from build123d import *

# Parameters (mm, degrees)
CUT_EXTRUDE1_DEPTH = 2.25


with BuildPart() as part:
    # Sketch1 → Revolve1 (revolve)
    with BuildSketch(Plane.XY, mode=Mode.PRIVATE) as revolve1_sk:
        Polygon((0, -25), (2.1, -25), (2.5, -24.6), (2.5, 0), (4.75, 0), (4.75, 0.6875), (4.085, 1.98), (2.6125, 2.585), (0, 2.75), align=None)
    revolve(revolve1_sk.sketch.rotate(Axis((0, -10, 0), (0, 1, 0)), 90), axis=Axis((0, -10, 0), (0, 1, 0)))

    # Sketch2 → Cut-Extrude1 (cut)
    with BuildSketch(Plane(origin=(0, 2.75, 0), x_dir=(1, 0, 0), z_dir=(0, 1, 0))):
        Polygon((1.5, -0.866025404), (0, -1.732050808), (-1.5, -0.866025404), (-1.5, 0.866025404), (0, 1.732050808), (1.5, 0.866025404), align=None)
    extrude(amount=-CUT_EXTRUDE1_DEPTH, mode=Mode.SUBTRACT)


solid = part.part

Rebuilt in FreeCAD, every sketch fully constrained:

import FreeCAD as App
import Part
import Sketcher

V = App.Vector
Q = App.Units.Quantity


def add_polygon(sketch, points):
    """Adds a closed chain of lines whose ends are joined by coincident constraints."""
    first, n = sketch.GeometryCount, len(points)
    for a, b in zip(points, points[1:] + points[:1]):
        sketch.addGeometry(Part.LineSegment(App.Vector(*a, 0), App.Vector(*b, 0)), False)
    for i in range(n):
        sketch.addConstraint(Sketcher.Constraint("Coincident", first + i, 2, first + (i + 1) % n, 1))

doc = App.newDocument("Part")
params = doc.addObject("Spreadsheet::Sheet", "Params")
for row, (alias, value) in enumerate([
    ("sketch1_width", "2.1 mm"),
    ("sketch1_height", "24.6 mm"),
    ("sketch1_width2", "2.25 mm"),
    ("sketch1_height2", "27.75 mm"),
    ("revolution_angle", "360 deg"),
    ("pocket1_length", "2.25 mm"),
], start=1):
    params.set(f"A{row}", alias)
    params.set(f"B{row}", "=" + value)
    params.setAlias(f"B{row}", alias)

body = doc.addObject("PartDesign::Body", "Body")

sketch1 = body.newObject("Sketcher::SketchObject", "Sketch")
sketch1.AttachmentSupport = (doc.getObject("XY_Plane"), [""])
sketch1.MapMode = "FlatFace"
add_polygon(sketch1, [(0, -25), (2.1, -25), (2.5, -24.6), (2.5, 0), (4.8, 0), (4.8, 0.7), (4.1, 2), (2.6, 2.6), (0, 2.8)])
sketch1.addConstraint([
    Sketcher.Constraint("Horizontal", 0),
    Sketcher.Constraint("Vertical", 2),
    Sketcher.Constraint("Horizontal", 3),
    Sketcher.Constraint("Vertical", 4),
    Sketcher.Constraint("Vertical", 8),
    Sketcher.Constraint("PointOnObject", 2, 2, -1),
    Sketcher.Constraint("PointOnObject", 7, 2, -2),
    Sketcher.Constraint("Angle", 1, Q("45 deg")),
    Sketcher.Constraint("DistanceX", 0, 1, 0, 2, Q("2.1 mm")),
    Sketcher.Constraint("DistanceY", 2, 1, 2, 2, Q("24.6 mm")),
    Sketcher.Constraint("DistanceY", 0, 2, -1, 1, Q("25 mm")),
    Sketcher.Constraint("DistanceX", 3, 1, 3, 2, Q("2.25 mm")),
    Sketcher.Constraint("DistanceY", 8, 2, 8, 1, Q("27.75 mm")),
    Sketcher.Constraint("DistanceY", -1, 1, 5, 2, Q("1.98 mm")),
    Sketcher.Constraint("DistanceY", 4, 1, 4, 2, Q("0.6875 mm")),
    Sketcher.Constraint("DistanceX", -1, 1, 5, 2, Q("4.085 mm")),
    Sketcher.Constraint("DistanceY", -1, 1, 6, 2, Q("2.585 mm")),
    Sketcher.Constraint("DistanceX", -1, 1, 6, 2, Q("2.6125 mm")),
])
sketch1.setExpression("Constraints[17]", "Params.sketch1_width")
sketch1.setExpression("Constraints[18]", "Params.sketch1_height")
sketch1.setExpression("Constraints[20]", "Params.sketch1_width2")
sketch1.setExpression("Constraints[21]", "Params.sketch1_height2")
revolution = body.newObject("PartDesign::Revolution", "Revolution")
revolution.Profile = sketch1
revolution.ReferenceAxis = (sketch1, ["V_Axis"])
revolution.setExpression("Angle", "Params.revolution_angle")

sketch2 = body.newObject("Sketcher::SketchObject", "Sketch001")
sketch2.AttachmentSupport = (doc.getObject("XZ_Plane"), [""])
sketch2.MapMode = "FlatFace"
sketch2.AttachmentOffset = App.Placement(V(0, 0, -2.75), App.Rotation())
add_polygon(sketch2, [(0, 1.7), (1.5, 0.9), (1.5, -0.9), (0, -1.7), (-1.5, -0.9), (-1.5, 0.9)])
sketch2.addConstraint([
    Sketcher.Constraint("Vertical", 1),
    Sketcher.Constraint("Vertical", 4),
    Sketcher.Constraint("Symmetric", 0, 2, 3, 2, -1, 1),
    Sketcher.Constraint("Symmetric", 2, 2, 5, 2, -1, 1),
    Sketcher.Constraint("PointOnObject", 2, 2, -2),
    Sketcher.Constraint("Parallel", 2, 5),
    Sketcher.Constraint("Horizontal", 1, 2, 3, 2),
    Sketcher.Constraint("Angle", 0, Q("-30 deg")),
    Sketcher.Constraint("DistanceX", 3, 2, 1, 2, Q("3 mm")),
    Sketcher.Constraint("DistanceY", 1, 2, 1, 1, Q("1.732051 mm")),
])
pocket1 = body.newObject("PartDesign::Pocket", "Pocket")
pocket1.Profile = sketch2
pocket1.setExpression("Length", "Params.pocket1_length")
pocket1.Reversed = True

doc.recompute()
